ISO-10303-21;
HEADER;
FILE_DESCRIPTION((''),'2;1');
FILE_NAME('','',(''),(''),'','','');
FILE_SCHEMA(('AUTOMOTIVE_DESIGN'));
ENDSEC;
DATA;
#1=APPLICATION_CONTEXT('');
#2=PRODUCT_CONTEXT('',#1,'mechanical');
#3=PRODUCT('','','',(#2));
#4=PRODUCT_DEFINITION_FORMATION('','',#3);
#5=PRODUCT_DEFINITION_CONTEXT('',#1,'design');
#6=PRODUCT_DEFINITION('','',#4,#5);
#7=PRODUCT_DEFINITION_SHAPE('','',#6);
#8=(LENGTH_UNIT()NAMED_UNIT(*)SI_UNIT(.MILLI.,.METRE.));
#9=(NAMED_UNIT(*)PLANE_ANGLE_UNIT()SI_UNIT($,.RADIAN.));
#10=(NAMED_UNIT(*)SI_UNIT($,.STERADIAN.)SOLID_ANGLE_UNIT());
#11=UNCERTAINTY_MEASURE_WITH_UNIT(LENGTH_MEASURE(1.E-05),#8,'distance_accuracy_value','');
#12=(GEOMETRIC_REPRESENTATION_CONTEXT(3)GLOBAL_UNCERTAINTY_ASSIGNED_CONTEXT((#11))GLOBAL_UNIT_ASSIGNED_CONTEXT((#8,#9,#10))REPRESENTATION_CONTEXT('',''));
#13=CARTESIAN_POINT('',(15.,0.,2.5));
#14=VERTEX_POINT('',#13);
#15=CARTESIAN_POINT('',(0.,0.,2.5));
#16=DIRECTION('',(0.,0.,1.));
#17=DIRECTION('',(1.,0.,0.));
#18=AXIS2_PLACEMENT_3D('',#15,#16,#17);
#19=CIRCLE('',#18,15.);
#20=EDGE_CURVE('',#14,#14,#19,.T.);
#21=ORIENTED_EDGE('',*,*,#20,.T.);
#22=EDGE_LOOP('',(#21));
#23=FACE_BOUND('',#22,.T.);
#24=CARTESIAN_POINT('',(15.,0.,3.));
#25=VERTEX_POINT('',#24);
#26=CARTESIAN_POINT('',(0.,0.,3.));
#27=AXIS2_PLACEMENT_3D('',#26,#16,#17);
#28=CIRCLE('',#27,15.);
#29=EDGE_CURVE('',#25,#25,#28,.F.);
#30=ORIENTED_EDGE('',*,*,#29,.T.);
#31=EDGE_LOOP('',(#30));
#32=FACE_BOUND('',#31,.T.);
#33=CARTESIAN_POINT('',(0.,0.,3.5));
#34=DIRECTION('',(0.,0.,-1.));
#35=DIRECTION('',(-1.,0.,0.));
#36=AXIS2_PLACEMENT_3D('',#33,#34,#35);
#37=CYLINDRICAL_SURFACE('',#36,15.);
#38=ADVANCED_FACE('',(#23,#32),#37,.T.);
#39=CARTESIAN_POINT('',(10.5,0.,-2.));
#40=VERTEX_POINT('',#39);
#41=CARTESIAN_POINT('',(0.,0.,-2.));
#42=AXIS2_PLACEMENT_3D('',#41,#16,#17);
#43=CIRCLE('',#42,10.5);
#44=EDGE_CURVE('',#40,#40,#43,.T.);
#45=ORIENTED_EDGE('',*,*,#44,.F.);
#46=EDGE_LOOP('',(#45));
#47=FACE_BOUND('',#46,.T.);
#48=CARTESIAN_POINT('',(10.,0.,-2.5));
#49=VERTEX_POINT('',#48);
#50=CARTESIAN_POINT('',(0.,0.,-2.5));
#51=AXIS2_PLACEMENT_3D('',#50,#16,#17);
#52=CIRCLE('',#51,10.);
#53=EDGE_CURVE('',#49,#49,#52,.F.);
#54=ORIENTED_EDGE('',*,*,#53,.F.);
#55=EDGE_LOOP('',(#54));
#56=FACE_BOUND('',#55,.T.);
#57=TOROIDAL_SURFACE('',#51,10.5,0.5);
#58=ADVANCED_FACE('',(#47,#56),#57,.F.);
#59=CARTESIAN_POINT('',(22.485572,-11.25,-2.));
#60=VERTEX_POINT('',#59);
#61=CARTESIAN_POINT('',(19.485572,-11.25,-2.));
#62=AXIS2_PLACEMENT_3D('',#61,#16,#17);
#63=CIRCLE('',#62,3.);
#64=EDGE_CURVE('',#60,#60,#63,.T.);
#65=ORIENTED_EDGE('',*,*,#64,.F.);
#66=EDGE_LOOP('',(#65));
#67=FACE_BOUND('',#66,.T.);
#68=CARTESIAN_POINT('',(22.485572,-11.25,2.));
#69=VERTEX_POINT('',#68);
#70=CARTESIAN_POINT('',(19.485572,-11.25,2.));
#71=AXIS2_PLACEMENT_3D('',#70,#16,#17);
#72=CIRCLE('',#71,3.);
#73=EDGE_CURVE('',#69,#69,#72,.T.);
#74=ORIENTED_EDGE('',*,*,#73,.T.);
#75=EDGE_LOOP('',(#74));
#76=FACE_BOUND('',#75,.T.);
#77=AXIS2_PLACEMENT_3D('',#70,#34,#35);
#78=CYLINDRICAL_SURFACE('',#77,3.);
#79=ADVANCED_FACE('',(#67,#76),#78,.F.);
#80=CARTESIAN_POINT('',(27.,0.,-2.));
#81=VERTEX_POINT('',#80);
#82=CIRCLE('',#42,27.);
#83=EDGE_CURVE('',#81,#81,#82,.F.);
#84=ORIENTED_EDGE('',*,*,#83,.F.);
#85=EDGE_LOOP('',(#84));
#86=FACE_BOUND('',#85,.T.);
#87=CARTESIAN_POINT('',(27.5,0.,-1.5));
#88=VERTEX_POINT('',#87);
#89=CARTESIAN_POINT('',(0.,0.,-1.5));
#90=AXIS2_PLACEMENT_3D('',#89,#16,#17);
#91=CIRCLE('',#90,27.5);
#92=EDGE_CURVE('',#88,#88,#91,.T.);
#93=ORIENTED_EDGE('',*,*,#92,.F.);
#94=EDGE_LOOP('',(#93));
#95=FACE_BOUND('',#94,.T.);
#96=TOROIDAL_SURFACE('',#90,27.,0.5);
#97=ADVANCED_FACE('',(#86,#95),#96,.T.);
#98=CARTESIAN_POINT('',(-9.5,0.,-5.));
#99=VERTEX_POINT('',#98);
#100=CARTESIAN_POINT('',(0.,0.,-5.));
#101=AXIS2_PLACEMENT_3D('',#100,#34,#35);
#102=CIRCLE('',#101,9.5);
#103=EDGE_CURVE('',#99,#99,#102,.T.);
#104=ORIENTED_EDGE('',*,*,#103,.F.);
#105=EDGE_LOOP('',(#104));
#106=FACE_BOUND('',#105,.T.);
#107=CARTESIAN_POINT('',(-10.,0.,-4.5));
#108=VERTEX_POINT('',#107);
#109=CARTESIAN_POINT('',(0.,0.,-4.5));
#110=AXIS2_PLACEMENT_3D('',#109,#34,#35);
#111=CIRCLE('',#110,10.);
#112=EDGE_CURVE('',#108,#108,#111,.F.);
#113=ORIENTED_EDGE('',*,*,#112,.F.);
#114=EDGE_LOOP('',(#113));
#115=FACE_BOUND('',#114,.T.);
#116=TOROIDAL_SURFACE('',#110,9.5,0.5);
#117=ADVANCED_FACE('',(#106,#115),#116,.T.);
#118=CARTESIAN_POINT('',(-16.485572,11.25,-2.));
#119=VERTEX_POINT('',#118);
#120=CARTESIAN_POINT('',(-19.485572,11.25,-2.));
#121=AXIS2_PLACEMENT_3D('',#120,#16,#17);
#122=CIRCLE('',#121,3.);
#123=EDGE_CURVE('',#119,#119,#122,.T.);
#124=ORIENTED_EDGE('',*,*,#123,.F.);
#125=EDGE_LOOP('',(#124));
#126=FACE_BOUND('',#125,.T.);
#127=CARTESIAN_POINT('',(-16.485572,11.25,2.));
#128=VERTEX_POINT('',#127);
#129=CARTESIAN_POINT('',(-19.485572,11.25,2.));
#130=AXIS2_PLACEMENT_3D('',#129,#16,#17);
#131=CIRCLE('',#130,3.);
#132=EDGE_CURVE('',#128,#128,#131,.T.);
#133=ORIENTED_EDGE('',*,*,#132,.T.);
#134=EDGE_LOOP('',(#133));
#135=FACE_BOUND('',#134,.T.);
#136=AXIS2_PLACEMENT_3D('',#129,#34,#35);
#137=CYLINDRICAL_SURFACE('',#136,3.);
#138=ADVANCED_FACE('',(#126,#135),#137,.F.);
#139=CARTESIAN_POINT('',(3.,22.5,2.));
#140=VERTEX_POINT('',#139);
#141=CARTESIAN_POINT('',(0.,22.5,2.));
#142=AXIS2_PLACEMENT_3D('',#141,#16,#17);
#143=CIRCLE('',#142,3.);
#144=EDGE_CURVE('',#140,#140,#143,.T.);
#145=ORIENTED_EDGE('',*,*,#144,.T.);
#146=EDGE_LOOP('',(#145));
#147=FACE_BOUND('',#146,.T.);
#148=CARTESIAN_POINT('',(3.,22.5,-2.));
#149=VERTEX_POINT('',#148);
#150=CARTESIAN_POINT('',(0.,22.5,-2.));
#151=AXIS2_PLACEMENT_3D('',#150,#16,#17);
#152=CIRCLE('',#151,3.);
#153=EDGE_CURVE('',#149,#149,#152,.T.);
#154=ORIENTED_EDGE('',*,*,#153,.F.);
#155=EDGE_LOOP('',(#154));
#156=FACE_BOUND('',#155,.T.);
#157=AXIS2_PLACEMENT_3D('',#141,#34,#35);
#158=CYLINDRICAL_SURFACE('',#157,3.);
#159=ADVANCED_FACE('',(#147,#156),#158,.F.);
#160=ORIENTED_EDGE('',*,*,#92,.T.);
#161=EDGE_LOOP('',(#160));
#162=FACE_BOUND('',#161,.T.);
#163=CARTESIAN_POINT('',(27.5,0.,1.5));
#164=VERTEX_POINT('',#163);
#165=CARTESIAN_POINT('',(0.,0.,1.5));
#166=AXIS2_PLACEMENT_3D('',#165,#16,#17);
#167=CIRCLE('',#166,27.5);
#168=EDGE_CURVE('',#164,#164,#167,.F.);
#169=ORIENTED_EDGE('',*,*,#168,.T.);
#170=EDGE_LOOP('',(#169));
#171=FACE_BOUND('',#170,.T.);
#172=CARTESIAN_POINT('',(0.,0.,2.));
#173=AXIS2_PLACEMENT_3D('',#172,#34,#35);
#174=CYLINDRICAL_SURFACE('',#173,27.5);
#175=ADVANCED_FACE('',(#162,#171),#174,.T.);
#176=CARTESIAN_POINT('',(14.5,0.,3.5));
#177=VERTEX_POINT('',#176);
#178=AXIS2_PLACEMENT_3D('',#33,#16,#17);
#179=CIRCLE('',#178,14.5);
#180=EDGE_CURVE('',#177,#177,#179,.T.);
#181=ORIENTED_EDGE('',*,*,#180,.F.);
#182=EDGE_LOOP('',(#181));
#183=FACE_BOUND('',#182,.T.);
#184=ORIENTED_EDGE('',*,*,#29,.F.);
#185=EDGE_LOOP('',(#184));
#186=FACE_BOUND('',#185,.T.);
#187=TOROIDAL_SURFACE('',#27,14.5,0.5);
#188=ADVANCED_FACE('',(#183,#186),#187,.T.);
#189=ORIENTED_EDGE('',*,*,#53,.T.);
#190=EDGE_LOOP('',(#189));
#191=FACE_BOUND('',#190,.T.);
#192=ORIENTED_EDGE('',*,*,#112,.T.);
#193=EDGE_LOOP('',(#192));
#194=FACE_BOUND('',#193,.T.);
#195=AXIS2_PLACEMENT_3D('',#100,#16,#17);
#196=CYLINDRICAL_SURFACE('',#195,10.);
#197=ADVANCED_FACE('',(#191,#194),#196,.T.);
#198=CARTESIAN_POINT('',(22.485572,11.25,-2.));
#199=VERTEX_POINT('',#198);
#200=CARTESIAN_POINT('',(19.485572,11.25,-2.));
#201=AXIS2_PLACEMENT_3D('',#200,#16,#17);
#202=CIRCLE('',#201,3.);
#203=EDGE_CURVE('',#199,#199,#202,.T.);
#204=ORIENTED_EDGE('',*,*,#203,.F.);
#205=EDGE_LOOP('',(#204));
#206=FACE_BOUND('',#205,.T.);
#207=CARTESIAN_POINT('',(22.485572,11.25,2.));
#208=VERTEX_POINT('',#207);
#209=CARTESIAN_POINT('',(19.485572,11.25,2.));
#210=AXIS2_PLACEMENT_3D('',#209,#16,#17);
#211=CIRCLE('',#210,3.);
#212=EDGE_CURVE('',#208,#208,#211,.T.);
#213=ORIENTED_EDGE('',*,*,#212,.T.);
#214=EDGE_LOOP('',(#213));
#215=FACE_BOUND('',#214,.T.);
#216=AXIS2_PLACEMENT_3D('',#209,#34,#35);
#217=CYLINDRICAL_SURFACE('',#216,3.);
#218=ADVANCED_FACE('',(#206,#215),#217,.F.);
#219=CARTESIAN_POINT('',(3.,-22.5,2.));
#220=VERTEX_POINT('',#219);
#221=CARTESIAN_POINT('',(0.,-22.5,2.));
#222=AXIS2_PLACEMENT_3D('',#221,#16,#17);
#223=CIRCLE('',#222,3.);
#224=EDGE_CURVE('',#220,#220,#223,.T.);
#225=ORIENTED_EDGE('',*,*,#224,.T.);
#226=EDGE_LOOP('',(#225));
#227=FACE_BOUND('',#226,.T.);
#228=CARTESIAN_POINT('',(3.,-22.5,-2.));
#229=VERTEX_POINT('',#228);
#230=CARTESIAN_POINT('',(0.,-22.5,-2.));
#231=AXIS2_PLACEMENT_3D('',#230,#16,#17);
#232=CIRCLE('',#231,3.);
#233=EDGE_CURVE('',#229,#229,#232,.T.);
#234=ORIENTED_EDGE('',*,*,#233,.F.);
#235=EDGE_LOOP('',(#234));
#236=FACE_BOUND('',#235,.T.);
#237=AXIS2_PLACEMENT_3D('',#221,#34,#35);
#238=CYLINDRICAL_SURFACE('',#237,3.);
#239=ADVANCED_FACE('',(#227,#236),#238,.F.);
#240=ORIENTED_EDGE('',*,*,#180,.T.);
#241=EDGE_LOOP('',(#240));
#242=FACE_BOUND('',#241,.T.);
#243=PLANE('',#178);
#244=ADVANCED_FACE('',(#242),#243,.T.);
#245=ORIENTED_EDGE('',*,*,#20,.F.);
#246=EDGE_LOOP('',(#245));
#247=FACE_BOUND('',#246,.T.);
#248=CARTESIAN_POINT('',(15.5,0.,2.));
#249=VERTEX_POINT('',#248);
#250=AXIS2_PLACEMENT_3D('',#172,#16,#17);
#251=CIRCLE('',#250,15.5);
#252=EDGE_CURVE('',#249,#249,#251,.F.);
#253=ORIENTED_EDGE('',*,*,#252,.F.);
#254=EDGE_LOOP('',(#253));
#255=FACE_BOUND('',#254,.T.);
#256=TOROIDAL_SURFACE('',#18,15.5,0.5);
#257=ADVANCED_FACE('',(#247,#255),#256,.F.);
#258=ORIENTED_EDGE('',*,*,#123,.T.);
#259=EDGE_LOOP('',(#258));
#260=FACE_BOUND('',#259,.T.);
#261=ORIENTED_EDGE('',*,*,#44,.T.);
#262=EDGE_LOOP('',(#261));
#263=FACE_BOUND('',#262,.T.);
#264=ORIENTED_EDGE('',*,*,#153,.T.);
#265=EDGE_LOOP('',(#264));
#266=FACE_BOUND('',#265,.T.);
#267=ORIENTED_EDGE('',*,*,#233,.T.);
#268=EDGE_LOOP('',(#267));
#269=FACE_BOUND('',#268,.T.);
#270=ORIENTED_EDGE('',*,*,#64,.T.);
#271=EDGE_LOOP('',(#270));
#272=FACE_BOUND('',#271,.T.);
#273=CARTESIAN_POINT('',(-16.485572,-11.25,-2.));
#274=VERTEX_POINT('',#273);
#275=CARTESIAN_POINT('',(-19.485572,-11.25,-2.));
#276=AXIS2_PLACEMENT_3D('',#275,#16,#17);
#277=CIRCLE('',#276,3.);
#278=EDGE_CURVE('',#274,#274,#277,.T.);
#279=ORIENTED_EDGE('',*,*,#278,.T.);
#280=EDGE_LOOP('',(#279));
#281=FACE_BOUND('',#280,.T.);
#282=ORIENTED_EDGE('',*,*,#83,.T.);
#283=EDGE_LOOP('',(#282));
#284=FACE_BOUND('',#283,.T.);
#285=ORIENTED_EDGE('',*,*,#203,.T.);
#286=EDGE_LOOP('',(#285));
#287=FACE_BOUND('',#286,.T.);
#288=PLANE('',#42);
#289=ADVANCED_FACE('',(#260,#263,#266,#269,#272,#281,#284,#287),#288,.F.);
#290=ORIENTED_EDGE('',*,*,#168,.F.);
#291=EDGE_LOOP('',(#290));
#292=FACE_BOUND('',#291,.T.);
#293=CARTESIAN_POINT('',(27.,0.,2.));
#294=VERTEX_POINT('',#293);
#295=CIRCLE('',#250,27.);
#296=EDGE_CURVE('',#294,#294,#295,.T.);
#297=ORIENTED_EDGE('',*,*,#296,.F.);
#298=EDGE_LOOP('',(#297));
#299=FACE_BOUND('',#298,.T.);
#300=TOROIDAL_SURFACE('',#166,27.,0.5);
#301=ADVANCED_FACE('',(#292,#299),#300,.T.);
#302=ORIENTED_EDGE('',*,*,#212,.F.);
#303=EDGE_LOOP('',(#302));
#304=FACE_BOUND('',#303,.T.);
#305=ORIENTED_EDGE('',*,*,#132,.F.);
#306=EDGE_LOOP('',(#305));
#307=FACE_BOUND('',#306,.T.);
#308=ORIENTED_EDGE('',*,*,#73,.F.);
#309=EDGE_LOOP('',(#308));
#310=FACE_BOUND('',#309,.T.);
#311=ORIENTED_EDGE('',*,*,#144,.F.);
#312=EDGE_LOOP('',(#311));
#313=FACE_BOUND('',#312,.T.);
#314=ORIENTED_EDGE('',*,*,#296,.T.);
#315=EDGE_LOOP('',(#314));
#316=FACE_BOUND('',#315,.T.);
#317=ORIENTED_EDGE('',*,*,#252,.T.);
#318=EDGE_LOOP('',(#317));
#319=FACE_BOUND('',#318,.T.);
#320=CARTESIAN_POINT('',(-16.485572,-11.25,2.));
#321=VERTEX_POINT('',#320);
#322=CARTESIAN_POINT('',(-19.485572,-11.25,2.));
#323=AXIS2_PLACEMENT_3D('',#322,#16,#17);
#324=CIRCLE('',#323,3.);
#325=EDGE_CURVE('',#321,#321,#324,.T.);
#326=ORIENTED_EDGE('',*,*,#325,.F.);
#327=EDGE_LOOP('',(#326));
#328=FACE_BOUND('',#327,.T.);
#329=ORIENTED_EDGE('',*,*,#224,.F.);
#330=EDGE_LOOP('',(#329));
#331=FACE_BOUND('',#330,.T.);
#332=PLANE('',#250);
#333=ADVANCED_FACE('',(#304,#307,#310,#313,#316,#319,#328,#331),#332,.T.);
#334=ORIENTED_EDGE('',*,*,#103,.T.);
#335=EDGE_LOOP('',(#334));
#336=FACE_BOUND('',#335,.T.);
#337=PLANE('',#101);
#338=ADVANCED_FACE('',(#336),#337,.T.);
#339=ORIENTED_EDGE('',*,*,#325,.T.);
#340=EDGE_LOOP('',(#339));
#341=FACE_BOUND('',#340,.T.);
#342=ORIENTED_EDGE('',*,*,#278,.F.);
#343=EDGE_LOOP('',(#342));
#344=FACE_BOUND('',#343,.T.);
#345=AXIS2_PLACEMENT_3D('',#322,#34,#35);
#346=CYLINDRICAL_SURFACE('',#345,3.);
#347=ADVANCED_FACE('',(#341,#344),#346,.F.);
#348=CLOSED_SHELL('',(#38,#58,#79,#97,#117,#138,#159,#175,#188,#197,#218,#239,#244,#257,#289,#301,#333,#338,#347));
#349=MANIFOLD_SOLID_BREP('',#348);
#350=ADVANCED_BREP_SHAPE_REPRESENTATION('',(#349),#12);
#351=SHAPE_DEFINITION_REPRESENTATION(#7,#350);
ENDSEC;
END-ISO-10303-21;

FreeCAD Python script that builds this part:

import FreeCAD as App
import Part
import Sketcher

V = App.Vector
Q = App.Units.Quantity


def edges_at(feature, points):
    """Names of the edges that pass closest to the given points."""
    edges = feature.Shape.Edges
    near = lambda p: min(range(len(edges)), key=lambda i: edges[i].distToShape(Part.Vertex(*p))[0])
    return sorted({f"Edge{near(p) + 1}" for p in points})

doc = App.newDocument("Part")
params = doc.addObject("Spreadsheet::Sheet", "Params")
for row, (alias, value) in enumerate([
    ("sketch1_diameter", "55 mm"),
    ("sketch1_diameter2", "6 mm"),
    ("pad1_length", "4 mm"),
    ("sketch2_diameter", "30 mm"),
    ("pad2_length", "1.5 mm"),
    ("sketch3_diameter", "20 mm"),
    ("pad3_length", "3 mm"),
    ("fillet_radius", "0.5 mm"),
], start=1):
    params.set(f"A{row}", alias)
    params.set(f"B{row}", "=" + value)
    params.setAlias(f"B{row}", alias)

body = doc.addObject("PartDesign::Body", "Body")

# Sketch on XY plane
sketch1 = body.newObject("Sketcher::SketchObject", "Sketch")
sketch1.AttachmentSupport = (doc.getObject("XY_Plane"), [""])
sketch1.MapMode = "FlatFace"
sketch1.addGeometry(Part.Circle(V(0, 0, 0), V(0, 0, 1), 27.5), False)
sketch1.addGeometry(Part.Circle(V(-19.5, -11.2, 0), V(0, 0, 1), 3), False)
sketch1.addGeometry(Part.Circle(V(0, -22.5, 0), V(0, 0, 1), 3), False)
sketch1.addGeometry(Part.Circle(V(19.5, -11.2, 0), V(0, 0, 1), 3), False)
sketch1.addGeometry(Part.Circle(V(-19.5, 11.2, 0), V(0, 0, 1), 3), False)
sketch1.addGeometry(Part.Circle(V(19.5, 11.2, 0), V(0, 0, 1), 3), False)
sketch1.addGeometry(Part.Circle(V(0, 22.5, 0), V(0, 0, 1), 3), False)
sketch1.addConstraint(Sketcher.Constraint("Coincident", 0, 3, -1, 1))
sketch1.addConstraint(Sketcher.Constraint("Equal", 1, 2))
sketch1.addConstraint(Sketcher.Constraint("Equal", 2, 3))
sketch1.addConstraint(Sketcher.Constraint("Equal", 3, 4))
sketch1.addConstraint(Sketcher.Constraint("Equal", 4, 5))
sketch1.addConstraint(Sketcher.Constraint("Equal", 5, 6))
sketch1.addConstraint(Sketcher.Constraint("Symmetric", 3, 3, 4, 3, -1, 1))
sketch1.addConstraint(Sketcher.Constraint("Symmetric", 1, 3, 5, 3, -1, 1))
sketch1.addConstraint(Sketcher.Constraint("Symmetric", 2, 3, 6, 3, -1, 1))
sketch1.addConstraint(Sketcher.Constraint("Symmetric", 1, 3, 3, 3, -2))
sketch1.addConstraint(Sketcher.Constraint("PointOnObject", 2, 3, -2))
sketch1.addConstraint(Sketcher.Constraint("Diameter", 0, Q("55 mm")))
sketch1.addConstraint(Sketcher.Constraint("Diameter", 1, Q("6 mm")))
sketch1.addConstraint(Sketcher.Constraint("DistanceY", 2, 3, -1, 1, Q("22.5 mm")))
sketch1.addConstraint(Sketcher.Constraint("DistanceY", 1, 3, 4, 3, Q("22.5 mm")))
sketch1.addConstraint(Sketcher.Constraint("DistanceX", 1, 3, -1, 1, Q("19.485572 mm")))
sketch1.setExpression("Constraints[11]", "Params.sketch1_diameter")
sketch1.setExpression("Constraints[12]", "Params.sketch1_diameter2")
pad1 = body.newObject("PartDesign::Pad", "Pad")
pad1.Profile = sketch1
pad1.setExpression("Length", "Params.pad1_length")
pad1.Midplane = True

# Sketch on XY plane
sketch2 = body.newObject("Sketcher::SketchObject", "Sketch001")
sketch2.AttachmentSupport = (doc.getObject("XY_Plane"), [""])
sketch2.MapMode = "FlatFace"
sketch2.AttachmentOffset = App.Placement(V(0, 0, 2), App.Rotation())
sketch2.addGeometry(Part.Circle(V(0, 0, 0), V(0, 0, 1), 15), False)
sketch2.addConstraint(Sketcher.Constraint("Coincident", 0, 3, -1, 1))
sketch2.addConstraint(Sketcher.Constraint("Diameter", 0, Q("30 mm")))
sketch2.setExpression("Constraints[1]", "Params.sketch2_diameter")
pad2 = body.newObject("PartDesign::Pad", "Pad001")
pad2.Profile = sketch2
pad2.setExpression("Length", "Params.pad2_length")

# Sketch on XY plane
sketch3 = body.newObject("Sketcher::SketchObject", "Sketch002")
sketch3.AttachmentSupport = (doc.getObject("XY_Plane"), [""])
sketch3.MapMode = "FlatFace"
sketch3.AttachmentOffset = App.Placement(V(0, 0, -2), App.Rotation())
sketch3.addGeometry(Part.Circle(V(0, 0, 0), V(0, 0, 1), 10), False)
sketch3.addConstraint(Sketcher.Constraint("Coincident", 0, 3, -1, 1))
sketch3.addConstraint(Sketcher.Constraint("Diameter", 0, Q("20 mm")))
sketch3.setExpression("Constraints[1]", "Params.sketch3_diameter")
pad3 = body.newObject("PartDesign::Pad", "Pad002")
pad3.Profile = sketch3
pad3.setExpression("Length", "Params.pad3_length")
pad3.Reversed = True
doc.recompute()

fillet = body.newObject("PartDesign::Fillet", "Fillet")
fillet.Base = (pad3, edges_at(pad3, [
    (-27.5, 0, -2),
    (-15, 0, 2),
    (-15, 0, 3.5),
    (-10, 0, -2),
    (-10, 0, -5),
    (-27.5, 0, 2),
]))
fillet.setExpression("Radius", "Params.fillet_radius")

doc.recompute()
